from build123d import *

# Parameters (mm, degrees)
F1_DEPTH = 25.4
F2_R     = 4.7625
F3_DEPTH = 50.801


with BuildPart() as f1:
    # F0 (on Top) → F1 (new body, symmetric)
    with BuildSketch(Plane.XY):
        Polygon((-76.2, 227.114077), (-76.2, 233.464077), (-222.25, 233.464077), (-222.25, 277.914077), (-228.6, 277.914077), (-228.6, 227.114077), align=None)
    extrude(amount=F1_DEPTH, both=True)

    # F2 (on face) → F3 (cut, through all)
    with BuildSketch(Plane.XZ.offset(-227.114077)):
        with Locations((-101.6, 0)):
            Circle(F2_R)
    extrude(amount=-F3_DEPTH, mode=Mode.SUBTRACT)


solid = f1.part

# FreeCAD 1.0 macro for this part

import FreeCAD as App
import Part
import Sketcher
from FreeCAD import Vector
Q = App.Units.Quantity

doc = App.newDocument("Part")
params = doc.addObject("Spreadsheet::Sheet", "Params")
for row, (alias, value) in enumerate([
    ("sketch1_width", "6 in"),
    ("sketch1_height", "2 in"),
    ("sketch1_width2", "5.75 in"),
    ("pad1_length", "2 in"),
    ("sketch2_diameter", "0.375 in"),
], start=1):
    params.set(f"A{row}", alias)
    params.set(f"B{row}", "=" + value)
    params.setAlias(f"B{row}", alias)

body = doc.addObject("PartDesign::Body", "Body")

# Sketch on XY plane
sketch1 = body.newObject("Sketcher::SketchObject", "Sketch")
sketch1.AttachmentSupport = (doc.getObject("XY_Plane"), [""])
sketch1.MapMode = "FlatFace"
sketch1.addGeometry([
    Part.LineSegment(Vector(-76, 227, 0), Vector(-76, 233, 0)),  # 0
    Part.LineSegment(Vector(-76, 233, 0), Vector(-222, 233, 0)),  # 1
    Part.LineSegment(Vector(-222, 233, 0), Vector(-222, 278, 0)),  # 2
    Part.LineSegment(Vector(-222, 278, 0), Vector(-229, 278, 0)),  # 3
    Part.LineSegment(Vector(-229, 278, 0), Vector(-229, 227, 0)),  # 4
    Part.LineSegment(Vector(-229, 227, 0), Vector(-76, 227, 0)),  # 5
], False)
sketch1.addConstraint([
    Sketcher.Constraint("Coincident", 0, 2, 1, 1),
    Sketcher.Constraint("Coincident", 1, 2, 2, 1),
    Sketcher.Constraint("Coincident", 2, 2, 3, 1),
    Sketcher.Constraint("Coincident", 3, 2, 4, 1),
    Sketcher.Constraint("Coincident", 4, 2, 5, 1),
    Sketcher.Constraint("Coincident", 5, 2, 0, 1),
    Sketcher.Constraint("Vertical", 0),
    Sketcher.Constraint("Horizontal", 1),
    Sketcher.Constraint("Vertical", 2),
    Sketcher.Constraint("Horizontal", 3),
    Sketcher.Constraint("Vertical", 4),
    Sketcher.Constraint("Horizontal", 5),
    Sketcher.Constraint("Equal", 3, 0),
    Sketcher.Constraint("DistanceX", 5, 1, 5, 2, Q("6 in")),
    Sketcher.Constraint("DistanceY", 4, 2, 4, 1, Q("2 in")),
    Sketcher.Constraint("DistanceX", 0, 2, -1, 1, Q("3 in")),
    Sketcher.Constraint("DistanceX", 1, 2, 1, 1, Q("5.75 in")),
    Sketcher.Constraint("DistanceY", -1, 1, 0, 2, 233.464077),
])
sketch1.setExpression("Constraints[13]", "Params.sketch1_width")
sketch1.setExpression("Constraints[14]", "Params.sketch1_height")
sketch1.setExpression("Constraints[16]", "Params.sketch1_width2")
pad1 = body.newObject("PartDesign::Pad", "Pad")
pad1.Profile = sketch1
pad1.setExpression("Length", "Params.pad1_length")
pad1.Midplane = True

# Sketch on XZ plane
sketch2 = body.newObject("Sketcher::SketchObject", "Sketch001")
sketch2.AttachmentSupport = (doc.getObject("XZ_Plane"), [""])
sketch2.MapMode = "FlatFace"
sketch2.AttachmentOffset = App.Placement(Vector(0, 0, -227.114077), App.Rotation())
sketch2.addGeometry(Part.Circle(Vector(-101.6, 0, 0), Vector(0, 0, 1), 4.8), False)
sketch2.addConstraint([
    Sketcher.Constraint("PointOnObject", 0, 3, -1),
    Sketcher.Constraint("Diameter", 0, Q("0.375 in")),
    Sketcher.Constraint("DistanceX", 0, 3, -1, 1, Q("4 in")),
])
sketch2.setExpression("Constraints[1]", "Params.sketch2_diameter")
pocket1 = body.newObject("PartDesign::Pocket", "Pocket")
pocket1.Profile = sketch2
pocket1.Type = "ThroughAll"

doc.recompute()
